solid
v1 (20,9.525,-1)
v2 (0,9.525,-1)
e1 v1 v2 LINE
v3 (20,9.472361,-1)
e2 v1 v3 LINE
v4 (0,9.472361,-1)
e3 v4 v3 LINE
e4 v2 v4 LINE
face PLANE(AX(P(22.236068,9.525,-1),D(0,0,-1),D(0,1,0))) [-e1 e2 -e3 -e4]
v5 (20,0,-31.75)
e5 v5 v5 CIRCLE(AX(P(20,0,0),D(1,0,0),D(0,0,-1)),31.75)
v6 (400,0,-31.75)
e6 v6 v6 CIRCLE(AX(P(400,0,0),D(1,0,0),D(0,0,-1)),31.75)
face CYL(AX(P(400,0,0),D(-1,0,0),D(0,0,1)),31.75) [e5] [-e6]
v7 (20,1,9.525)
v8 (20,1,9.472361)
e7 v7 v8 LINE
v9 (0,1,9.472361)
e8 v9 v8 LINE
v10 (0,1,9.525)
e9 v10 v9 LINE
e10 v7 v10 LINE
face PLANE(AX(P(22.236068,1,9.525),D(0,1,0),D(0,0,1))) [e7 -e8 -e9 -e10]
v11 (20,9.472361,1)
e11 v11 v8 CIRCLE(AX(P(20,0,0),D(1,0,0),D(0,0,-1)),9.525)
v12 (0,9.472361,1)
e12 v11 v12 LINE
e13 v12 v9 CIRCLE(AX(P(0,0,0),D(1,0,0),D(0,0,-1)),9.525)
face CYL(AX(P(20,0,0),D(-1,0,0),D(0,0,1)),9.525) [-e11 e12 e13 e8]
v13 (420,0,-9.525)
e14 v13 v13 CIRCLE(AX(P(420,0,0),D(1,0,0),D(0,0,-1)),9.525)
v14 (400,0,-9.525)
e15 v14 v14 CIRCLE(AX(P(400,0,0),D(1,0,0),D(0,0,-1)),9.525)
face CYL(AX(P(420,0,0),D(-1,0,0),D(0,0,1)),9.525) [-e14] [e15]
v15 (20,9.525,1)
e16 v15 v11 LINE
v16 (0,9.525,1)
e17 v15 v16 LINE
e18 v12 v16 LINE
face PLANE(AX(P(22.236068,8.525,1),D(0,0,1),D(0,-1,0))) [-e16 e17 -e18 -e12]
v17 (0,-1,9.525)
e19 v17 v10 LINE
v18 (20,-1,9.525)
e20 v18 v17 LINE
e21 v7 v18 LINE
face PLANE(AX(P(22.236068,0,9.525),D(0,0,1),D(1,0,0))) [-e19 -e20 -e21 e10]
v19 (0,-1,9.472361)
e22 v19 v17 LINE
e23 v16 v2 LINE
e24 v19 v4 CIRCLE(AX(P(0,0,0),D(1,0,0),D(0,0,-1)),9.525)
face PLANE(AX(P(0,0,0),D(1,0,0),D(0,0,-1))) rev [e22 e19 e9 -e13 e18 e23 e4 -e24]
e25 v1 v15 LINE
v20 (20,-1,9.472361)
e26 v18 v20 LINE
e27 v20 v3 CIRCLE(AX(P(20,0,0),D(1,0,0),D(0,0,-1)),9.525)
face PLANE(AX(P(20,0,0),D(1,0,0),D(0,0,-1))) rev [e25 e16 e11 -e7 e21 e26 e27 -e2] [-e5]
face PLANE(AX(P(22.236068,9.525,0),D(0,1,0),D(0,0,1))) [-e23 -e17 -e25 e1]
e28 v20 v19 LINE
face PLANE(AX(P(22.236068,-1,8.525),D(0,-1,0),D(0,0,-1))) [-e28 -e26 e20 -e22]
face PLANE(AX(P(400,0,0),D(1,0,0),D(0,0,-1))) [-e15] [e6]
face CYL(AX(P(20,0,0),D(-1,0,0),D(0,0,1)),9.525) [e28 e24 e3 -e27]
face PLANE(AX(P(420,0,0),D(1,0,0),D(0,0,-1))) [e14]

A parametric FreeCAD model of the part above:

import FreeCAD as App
import Part
import Sketcher

V = App.Vector

doc = App.newDocument("Part")
body = doc.addObject("PartDesign::Body", "Body")

# Sketch on YZ plane
sketch1 = doc.addObject("Sketcher::SketchObject", "Sketch")
body.addObject(sketch1)
sketch1.AttachmentSupport = (doc.YZ_Plane, [""])
sketch1.MapMode = "FlatFace"
sketch1.addGeometry(Part.Circle(V(0, 0, 0), V(0, 0, 1), 10), False)
sketch1.addConstraint(Sketcher.Constraint("Coincident", 0, 3, -1, 1))
sketch1.addConstraint(Sketcher.Constraint("Diameter", 0, 19.05))
pad1 = doc.addObject("PartDesign::Pad", "Pad")
body.addObject(pad1)
pad1.Profile = sketch1
pad1.Length = 20

# Sketch on YZ plane
sketch2 = doc.addObject("Sketcher::SketchObject", "Sketch001")
body.addObject(sketch2)
sketch2.AttachmentSupport = (doc.YZ_Plane, [""])
sketch2.MapMode = "FlatFace"
sketch2.AttachmentOffset = App.Placement(V(0, 0, 20), App.Rotation())
sketch2.addGeometry(Part.Circle(V(0, 0, 0), V(0, 0, 1), 32), False)
sketch2.addConstraint(Sketcher.Constraint("Coincident", 0, 3, -1, 1))
sketch2.addConstraint(Sketcher.Constraint("Diameter", 0, 63.5))
pad2 = doc.addObject("PartDesign::Pad", "Pad001")
body.addObject(pad2)
pad2.Profile = sketch2
pad2.Length = 380

# Sketch on YZ plane
sketch3 = doc.addObject("Sketcher::SketchObject", "Sketch002")
body.addObject(sketch3)
sketch3.AttachmentSupport = (doc.YZ_Plane, [""])
sketch3.MapMode = "FlatFace"
sketch3.AttachmentOffset = App.Placement(V(0, 0, 400), App.Rotation())
sketch3.addGeometry(Part.Circle(V(0, 0, 0), V(0, 0, 1), 10), False)
sketch3.addConstraint(Sketcher.Constraint("Coincident", 0, 3, -1, 1))
sketch3.addConstraint(Sketcher.Constraint("Diameter", 0, 19.05))
pad3 = doc.addObject("PartDesign::Pad", "Pad002")
body.addObject(pad3)
pad3.Profile = sketch3
pad3.Length = 20

# Sketch on YZ plane
sketch4 = doc.addObject("Sketcher::SketchObject", "Sketch003")
body.addObject(sketch4)
sketch4.AttachmentSupport = (doc.YZ_Plane, [""])
sketch4.MapMode = "FlatFace"
sketch4.addGeometry(Part.LineSegment(V(9.5, -1, 0), V(8.5, -1, 0)), False)
sketch4.addGeometry(Part.LineSegment(V(8.5, -1, 0), V(8.5, 1, 0)), False)
sketch4.addGeometry(Part.LineSegment(V(8.5, 1, 0), V(9.5, 1, 0)), False)
sketch4.addGeometry(Part.LineSegment(V(9.5, 1, 0), V(9.5, -1, 0)), False)
sketch4.addGeometry(Part.LineSegment(V(1, 9.5, 0), V(1, 8.5, 0)), False)
sketch4.addGeometry(Part.LineSegment(V(1, 8.5, 0), V(-1, 8.5, 0)), False)
sketch4.addGeometry(Part.LineSegment(V(-1, 8.5, 0), V(-1, 9.5, 0)), False)
sketch4.addGeometry(Part.LineSegment(V(-1, 9.5, 0), V(1, 9.5, 0)), False)
sketch4.addConstraint(Sketcher.Constraint("Coincident", 0, 2, 1, 1))
sketch4.addConstraint(Sketcher.Constraint("Coincident", 1, 2, 2, 1))
sketch4.addConstraint(Sketcher.Constraint("Coincident", 2, 2, 3, 1))
sketch4.addConstraint(Sketcher.Constraint("Coincident", 3, 2, 0, 1))
sketch4.addConstraint(Sketcher.Constraint("Coincident", 4, 2, 5, 1))
sketch4.addConstraint(Sketcher.Constraint("Coincident", 5, 2, 6, 1))
sketch4.addConstraint(Sketcher.Constraint("Coincident", 6, 2, 7, 1))
sketch4.addConstraint(Sketcher.Constraint("Coincident", 7, 2, 4, 1))
sketch4.addConstraint(Sketcher.Constraint("Horizontal", 0))
sketch4.addConstraint(Sketcher.Constraint("Vertical", 1))
sketch4.addConstraint(Sketcher.Constraint("Horizontal", 2))
sketch4.addConstraint(Sketcher.Constraint("Vertical", 3))
sketch4.addConstraint(Sketcher.Constraint("Vertical", 4))
sketch4.addConstraint(Sketcher.Constraint("Horizontal", 5))
sketch4.addConstraint(Sketcher.Constraint("Vertical", 6))
sketch4.addConstraint(Sketcher.Constraint("Horizontal", 7))
sketch4.addConstraint(Sketcher.Constraint("Equal", 7, 1))
sketch4.addConstraint(Sketcher.Constraint("Equal", 2, 4))
sketch4.addConstraint(Sketcher.Constraint("DistanceX", 0, 2, 0, 1, 1.0))
sketch4.addConstraint(Sketcher.Constraint("DistanceX", 5, 2, 5, 1, 2.0))
sketch4.addConstraint(Sketcher.Constraint("DistanceY", 0, 2, -1, 1, 1.0))
sketch4.addConstraint(Sketcher.Constraint("DistanceX", -1, 1, 4, 2, 1.0))
sketch4.addConstraint(Sketcher.Constraint("DistanceX", -1, 1, 0, 2, 8.525))
sketch4.addConstraint(Sketcher.Constraint("DistanceY", -1, 1, 4, 2, 8.525))
pad4 = doc.addObject("PartDesign::Pad", "Pad003")
body.addObject(pad4)
pad4.Profile = sketch4
pad4.Length = 20

doc.recompute()
